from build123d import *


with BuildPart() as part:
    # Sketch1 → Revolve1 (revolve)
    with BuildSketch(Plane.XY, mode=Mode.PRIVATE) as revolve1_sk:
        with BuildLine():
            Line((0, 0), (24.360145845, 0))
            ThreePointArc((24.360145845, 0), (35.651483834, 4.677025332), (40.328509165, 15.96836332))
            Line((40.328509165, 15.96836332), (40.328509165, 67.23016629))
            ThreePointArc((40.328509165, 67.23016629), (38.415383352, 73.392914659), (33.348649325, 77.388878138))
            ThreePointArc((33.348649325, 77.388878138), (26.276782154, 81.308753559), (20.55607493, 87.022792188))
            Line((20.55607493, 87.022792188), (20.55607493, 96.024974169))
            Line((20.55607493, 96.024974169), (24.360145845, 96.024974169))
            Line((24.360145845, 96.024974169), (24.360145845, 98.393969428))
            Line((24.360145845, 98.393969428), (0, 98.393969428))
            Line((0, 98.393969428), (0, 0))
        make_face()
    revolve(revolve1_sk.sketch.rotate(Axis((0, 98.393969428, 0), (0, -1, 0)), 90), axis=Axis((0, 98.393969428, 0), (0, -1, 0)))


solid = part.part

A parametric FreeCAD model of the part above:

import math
import FreeCAD as App
import Part
import Sketcher
from FreeCAD import Vector

doc = App.newDocument("Part")
body = doc.addObject("PartDesign::Body", "Body")

# Sketch on XY plane
sketch1 = doc.addObject("Sketcher::SketchObject", "Sketch")
body.addObject(sketch1)
sketch1.AttachmentSupport = (doc.XY_Plane, [""])
sketch1.MapMode = "FlatFace"
sketch1.addGeometry([
    Part.LineSegment(Vector(0, 0, 0), Vector(24.4, 0, 0)),  # 0
    Part.ArcOfCircle(Part.Circle(Vector(24.4, 16, 0), Vector(0, 0, 1), 16), math.radians(-90), math.radians(0)),  # 1
    Part.LineSegment(Vector(40.3, 16, 0), Vector(40.3, 67.2, 0)),  # 2
    Part.ArcOfCircle(Part.Circle(Vector(29.4, 67.2, 0), Vector(0, 0, 1), 10.9), math.radians(0), math.radians(69)),  # 3
    Part.ArcOfCircle(Part.Circle(Vector(43.8, 104.6, 0), Vector(0, 0, 1), 29.1), math.radians(-143), math.radians(-111)),  # 4
    Part.LineSegment(Vector(20.6, 87, 0), Vector(20.6, 96, 0)),  # 5
    Part.LineSegment(Vector(20.6, 96, 0), Vector(24.4, 96, 0)),  # 6
    Part.LineSegment(Vector(24.4, 96, 0), Vector(24.4, 98.4, 0)),  # 7
    Part.LineSegment(Vector(24.4, 98.4, 0), Vector(0, 98.4, 0)),  # 8
    Part.LineSegment(Vector(0, 98.4, 0), Vector(0, 0, 0)),  # 9
], False)
sketch1.addConstraint([
    Sketcher.Constraint("Tangent", 0, 2, 1, 1),
    Sketcher.Constraint("Tangent", 1, 2, 2, 1),
    Sketcher.Constraint("Tangent", 2, 2, 3, 1),
    Sketcher.Constraint("Tangent", 3, 2, 4, 2),
    Sketcher.Constraint("Coincident", 4, 1, 5, 1),
    Sketcher.Constraint("Coincident", 5, 2, 6, 1),
    Sketcher.Constraint("Coincident", 6, 2, 7, 1),
    Sketcher.Constraint("Coincident", 7, 2, 8, 1),
    Sketcher.Constraint("Coincident", 8, 2, 9, 1),
    Sketcher.Constraint("Coincident", 9, 2, 0, 1),
    Sketcher.Constraint("Horizontal", 0),
    Sketcher.Constraint("Vertical", 2),
    Sketcher.Constraint("Vertical", 5),
    Sketcher.Constraint("Horizontal", 6),
    Sketcher.Constraint("Vertical", 7),
    Sketcher.Constraint("Horizontal", 8),
    Sketcher.Constraint("Vertical", 9),
    Sketcher.Constraint("Coincident", 9, 2, -1, 1),
    Sketcher.Constraint("Vertical", 0, 2, 6, 2),
    Sketcher.Constraint("Radius", 4, 29.107671),
    Sketcher.Constraint("Radius", 1, 15.968363),
    Sketcher.Constraint("Radius", 3, 10.882587),
    Sketcher.Constraint("DistanceX", 6, 1, 6, 2, 3.804071),
    Sketcher.Constraint("DistanceY", 5, 1, 5, 2, 9.002182),
    Sketcher.Constraint("DistanceY", 9, 2, 9, 1, 98.393969),
    Sketcher.Constraint("DistanceY", -1, 1, 4, 3, 104.560398),
    Sketcher.Constraint("DistanceX", 0, 1, 0, 2, 24.360146),
    Sketcher.Constraint("DistanceY", 2, 1, 2, 2, 51.261803),
])
revolution = doc.addObject("PartDesign::Revolution", "Revolution")
body.addObject(revolution)
revolution.Profile = sketch1
revolution.ReferenceAxis = (sketch1, ["V_Axis"])
revolution.Angle = 360

doc.recompute()
